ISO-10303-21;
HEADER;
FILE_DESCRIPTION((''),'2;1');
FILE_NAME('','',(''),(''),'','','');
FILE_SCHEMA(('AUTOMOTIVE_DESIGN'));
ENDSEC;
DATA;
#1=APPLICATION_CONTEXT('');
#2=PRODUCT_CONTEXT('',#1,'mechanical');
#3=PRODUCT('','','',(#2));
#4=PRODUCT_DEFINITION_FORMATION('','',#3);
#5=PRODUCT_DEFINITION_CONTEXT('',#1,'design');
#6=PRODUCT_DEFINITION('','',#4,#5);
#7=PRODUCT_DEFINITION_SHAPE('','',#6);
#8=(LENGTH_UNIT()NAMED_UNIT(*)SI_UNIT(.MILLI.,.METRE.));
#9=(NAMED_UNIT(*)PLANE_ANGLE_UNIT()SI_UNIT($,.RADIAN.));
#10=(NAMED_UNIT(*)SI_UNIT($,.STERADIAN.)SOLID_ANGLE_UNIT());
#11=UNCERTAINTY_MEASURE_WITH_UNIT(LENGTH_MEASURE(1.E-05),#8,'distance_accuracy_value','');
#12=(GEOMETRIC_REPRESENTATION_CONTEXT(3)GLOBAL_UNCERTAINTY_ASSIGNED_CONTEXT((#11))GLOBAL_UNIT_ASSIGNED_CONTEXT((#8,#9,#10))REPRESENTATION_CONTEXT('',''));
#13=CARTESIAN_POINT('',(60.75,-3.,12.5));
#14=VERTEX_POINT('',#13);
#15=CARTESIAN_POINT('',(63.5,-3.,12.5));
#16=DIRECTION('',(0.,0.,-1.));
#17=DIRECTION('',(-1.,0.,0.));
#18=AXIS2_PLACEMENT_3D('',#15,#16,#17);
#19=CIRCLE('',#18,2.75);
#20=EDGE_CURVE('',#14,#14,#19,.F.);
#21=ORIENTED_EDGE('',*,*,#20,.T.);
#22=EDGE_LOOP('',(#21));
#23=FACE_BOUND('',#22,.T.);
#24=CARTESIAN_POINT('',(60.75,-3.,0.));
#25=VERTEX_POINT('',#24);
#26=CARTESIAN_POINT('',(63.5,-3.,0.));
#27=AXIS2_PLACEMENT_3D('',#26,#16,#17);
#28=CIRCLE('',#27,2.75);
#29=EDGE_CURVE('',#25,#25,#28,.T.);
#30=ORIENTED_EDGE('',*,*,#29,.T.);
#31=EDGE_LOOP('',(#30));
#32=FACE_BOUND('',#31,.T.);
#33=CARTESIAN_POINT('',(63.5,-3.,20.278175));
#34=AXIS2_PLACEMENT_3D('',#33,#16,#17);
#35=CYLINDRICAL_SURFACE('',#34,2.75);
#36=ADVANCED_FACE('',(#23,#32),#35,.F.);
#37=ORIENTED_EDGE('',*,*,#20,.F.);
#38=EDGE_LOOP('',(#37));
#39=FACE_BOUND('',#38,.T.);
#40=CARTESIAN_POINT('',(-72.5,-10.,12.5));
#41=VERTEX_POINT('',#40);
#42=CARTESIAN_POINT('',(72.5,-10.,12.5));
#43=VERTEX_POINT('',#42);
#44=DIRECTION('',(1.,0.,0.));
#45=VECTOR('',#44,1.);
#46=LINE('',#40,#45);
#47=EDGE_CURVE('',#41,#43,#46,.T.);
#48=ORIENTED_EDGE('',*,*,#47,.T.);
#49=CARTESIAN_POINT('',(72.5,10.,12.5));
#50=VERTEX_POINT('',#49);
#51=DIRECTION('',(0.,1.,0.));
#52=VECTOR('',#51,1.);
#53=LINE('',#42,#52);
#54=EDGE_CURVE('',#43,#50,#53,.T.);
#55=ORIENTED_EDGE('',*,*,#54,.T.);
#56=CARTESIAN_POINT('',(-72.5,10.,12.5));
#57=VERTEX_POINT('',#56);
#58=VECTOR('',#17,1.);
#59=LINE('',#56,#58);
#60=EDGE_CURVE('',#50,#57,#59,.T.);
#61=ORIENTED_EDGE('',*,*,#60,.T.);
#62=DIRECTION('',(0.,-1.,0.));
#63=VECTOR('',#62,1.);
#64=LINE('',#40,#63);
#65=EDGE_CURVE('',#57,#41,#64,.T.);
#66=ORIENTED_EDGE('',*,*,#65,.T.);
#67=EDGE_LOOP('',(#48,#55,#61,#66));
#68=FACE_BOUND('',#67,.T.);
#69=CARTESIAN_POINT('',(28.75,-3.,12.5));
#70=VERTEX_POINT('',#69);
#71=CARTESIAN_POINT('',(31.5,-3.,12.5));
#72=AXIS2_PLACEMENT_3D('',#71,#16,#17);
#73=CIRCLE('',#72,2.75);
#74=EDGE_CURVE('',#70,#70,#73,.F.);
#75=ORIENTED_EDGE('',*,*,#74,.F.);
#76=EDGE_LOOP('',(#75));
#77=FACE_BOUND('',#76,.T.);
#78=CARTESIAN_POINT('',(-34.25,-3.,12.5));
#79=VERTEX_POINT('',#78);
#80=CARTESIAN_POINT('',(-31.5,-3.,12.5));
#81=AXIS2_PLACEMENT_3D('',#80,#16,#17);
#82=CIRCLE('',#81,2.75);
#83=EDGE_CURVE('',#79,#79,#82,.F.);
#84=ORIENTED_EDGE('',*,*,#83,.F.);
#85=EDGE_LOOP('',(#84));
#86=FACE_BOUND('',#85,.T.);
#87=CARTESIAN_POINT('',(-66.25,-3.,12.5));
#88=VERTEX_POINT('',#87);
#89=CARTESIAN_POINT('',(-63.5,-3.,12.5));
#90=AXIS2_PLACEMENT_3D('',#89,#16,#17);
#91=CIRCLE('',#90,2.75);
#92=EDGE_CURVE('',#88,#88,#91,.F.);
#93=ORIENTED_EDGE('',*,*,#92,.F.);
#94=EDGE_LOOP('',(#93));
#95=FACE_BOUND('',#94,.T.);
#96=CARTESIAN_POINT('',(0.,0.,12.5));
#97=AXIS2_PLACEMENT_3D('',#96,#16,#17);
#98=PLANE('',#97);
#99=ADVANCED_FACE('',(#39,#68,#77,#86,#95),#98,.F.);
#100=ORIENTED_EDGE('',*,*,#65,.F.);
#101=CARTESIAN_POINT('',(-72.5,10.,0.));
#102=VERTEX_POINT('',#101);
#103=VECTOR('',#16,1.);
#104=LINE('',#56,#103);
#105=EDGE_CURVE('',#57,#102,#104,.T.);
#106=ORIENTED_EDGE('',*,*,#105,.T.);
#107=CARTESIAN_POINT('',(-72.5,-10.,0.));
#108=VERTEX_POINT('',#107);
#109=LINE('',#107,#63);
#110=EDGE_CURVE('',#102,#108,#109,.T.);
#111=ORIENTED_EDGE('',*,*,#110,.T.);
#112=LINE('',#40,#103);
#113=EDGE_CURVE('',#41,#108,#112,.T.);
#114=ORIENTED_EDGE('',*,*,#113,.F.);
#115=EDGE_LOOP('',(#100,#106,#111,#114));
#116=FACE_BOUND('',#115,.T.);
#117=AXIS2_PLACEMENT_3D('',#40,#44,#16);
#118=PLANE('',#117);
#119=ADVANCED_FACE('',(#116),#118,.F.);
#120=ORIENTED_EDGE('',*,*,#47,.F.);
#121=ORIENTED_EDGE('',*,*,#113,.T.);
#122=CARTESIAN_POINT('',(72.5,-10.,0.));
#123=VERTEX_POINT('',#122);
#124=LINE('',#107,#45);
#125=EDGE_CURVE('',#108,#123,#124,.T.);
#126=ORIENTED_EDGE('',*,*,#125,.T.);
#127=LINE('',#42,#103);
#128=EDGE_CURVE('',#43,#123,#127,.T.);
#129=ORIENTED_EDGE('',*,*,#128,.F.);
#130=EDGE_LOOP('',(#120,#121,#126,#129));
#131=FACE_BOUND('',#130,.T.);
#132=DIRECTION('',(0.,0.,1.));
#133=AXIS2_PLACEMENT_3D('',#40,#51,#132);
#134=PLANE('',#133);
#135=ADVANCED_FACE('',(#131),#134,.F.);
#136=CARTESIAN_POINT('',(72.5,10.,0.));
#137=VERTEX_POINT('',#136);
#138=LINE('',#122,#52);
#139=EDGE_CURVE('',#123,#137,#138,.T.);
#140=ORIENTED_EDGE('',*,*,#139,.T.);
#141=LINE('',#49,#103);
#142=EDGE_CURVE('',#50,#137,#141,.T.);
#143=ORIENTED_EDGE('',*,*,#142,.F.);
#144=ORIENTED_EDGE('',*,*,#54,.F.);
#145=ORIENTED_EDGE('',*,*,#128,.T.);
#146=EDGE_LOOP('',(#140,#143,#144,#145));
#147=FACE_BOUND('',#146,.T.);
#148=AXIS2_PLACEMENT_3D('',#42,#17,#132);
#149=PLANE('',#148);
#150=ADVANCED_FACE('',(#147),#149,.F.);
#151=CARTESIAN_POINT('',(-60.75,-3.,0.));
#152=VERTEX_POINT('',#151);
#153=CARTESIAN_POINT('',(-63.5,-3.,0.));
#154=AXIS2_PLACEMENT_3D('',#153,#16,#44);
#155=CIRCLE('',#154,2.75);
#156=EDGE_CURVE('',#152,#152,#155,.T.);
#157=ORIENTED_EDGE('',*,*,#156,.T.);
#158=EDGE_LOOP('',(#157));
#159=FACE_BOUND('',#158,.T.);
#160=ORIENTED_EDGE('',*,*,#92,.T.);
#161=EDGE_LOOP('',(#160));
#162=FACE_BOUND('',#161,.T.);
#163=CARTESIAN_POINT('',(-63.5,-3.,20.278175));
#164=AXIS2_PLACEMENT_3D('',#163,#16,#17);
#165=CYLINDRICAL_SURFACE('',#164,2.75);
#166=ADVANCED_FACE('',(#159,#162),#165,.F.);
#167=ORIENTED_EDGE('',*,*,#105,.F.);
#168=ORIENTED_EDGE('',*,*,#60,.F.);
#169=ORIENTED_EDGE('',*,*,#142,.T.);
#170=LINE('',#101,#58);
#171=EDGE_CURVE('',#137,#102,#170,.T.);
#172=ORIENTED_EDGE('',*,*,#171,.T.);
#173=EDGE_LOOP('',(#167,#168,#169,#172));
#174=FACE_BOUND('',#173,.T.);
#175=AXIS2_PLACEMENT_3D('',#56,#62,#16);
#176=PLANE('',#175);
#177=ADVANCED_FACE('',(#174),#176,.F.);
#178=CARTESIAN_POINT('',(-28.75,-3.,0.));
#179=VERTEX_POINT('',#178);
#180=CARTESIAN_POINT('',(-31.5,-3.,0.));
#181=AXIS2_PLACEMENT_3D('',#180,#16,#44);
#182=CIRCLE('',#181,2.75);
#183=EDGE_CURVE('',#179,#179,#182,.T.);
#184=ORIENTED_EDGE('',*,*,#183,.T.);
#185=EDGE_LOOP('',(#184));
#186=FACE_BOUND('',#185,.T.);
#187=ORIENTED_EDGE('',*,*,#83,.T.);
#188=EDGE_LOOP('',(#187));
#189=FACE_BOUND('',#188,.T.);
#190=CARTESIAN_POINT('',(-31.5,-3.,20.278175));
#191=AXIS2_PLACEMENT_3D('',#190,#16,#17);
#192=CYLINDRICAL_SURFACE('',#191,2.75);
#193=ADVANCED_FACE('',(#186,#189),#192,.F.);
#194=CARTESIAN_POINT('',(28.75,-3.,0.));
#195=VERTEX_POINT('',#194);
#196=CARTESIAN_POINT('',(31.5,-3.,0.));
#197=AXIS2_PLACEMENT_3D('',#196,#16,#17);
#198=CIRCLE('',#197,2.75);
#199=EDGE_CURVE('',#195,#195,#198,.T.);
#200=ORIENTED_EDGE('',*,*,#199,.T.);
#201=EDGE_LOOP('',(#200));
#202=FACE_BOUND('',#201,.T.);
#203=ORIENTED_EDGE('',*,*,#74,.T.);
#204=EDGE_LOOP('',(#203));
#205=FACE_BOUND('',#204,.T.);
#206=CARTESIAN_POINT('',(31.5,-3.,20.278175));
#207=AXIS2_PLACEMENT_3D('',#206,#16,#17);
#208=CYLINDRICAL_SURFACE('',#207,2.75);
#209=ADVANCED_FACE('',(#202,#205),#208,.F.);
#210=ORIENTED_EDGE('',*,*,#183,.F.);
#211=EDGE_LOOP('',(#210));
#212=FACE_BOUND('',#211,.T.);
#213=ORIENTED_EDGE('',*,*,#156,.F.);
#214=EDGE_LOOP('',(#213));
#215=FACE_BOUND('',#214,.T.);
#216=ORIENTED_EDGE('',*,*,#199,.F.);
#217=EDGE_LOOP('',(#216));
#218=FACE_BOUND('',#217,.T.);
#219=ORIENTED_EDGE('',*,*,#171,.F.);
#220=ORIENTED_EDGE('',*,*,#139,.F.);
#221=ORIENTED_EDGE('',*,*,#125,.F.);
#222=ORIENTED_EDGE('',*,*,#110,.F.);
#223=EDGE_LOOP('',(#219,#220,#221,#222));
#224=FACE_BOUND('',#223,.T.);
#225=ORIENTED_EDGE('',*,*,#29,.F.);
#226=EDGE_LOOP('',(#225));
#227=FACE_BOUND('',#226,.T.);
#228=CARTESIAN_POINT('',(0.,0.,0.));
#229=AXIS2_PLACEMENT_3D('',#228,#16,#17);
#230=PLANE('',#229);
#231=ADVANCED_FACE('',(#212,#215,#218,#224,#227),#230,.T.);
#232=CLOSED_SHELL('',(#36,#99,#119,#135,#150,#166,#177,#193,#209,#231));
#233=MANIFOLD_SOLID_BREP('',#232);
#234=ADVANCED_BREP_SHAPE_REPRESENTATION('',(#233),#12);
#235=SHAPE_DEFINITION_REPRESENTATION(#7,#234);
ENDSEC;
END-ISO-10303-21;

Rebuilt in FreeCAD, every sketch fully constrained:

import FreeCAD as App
import Part
import Sketcher

V = App.Vector
Q = App.Units.Quantity


def add_polygon(sketch, points):
    """Adds a closed chain of lines whose ends are joined by coincident constraints."""
    first, n = sketch.GeometryCount, len(points)
    for a, b in zip(points, points[1:] + points[:1]):
        sketch.addGeometry(Part.LineSegment(App.Vector(*a, 0), App.Vector(*b, 0)), False)
    for i in range(n):
        sketch.addConstraint(Sketcher.Constraint("Coincident", first + i, 2, first + (i + 1) % n, 1))

doc = App.newDocument("Part")
params = doc.addObject("Spreadsheet::Sheet", "Params")
for row, (alias, value) in enumerate([
    ("sketch1_width", "145 mm"),
    ("sketch1_height", "20 mm"),
    ("pad1_length", "12.5 mm"),
    ("sketch2_diameter", "5.5 mm"),
    ("pocket1_length", "12.5 mm"),
], start=1):
    params.set(f"A{row}", alias)
    params.set(f"B{row}", "=" + value)
    params.setAlias(f"B{row}", alias)

body = doc.addObject("PartDesign::Body", "Body")

# Sketch on XY plane
sketch1 = doc.addObject("Sketcher::SketchObject", "Sketch")
body.addObject(sketch1)
sketch1.AttachmentSupport = (doc.XY_Plane, [""])
sketch1.MapMode = "FlatFace"
add_polygon(sketch1, [(-72, 10), (-72, -10), (72, -10), (72, 10)])  # lines 0-3
sketch1.addConstraint(Sketcher.Constraint("Vertical", 0))
sketch1.addConstraint(Sketcher.Constraint("Horizontal", 1))
sketch1.addConstraint(Sketcher.Constraint("Vertical", 2))
sketch1.addConstraint(Sketcher.Constraint("Horizontal", 3))
sketch1.addConstraint(Sketcher.Constraint("Symmetric", 0, 2, 2, 2, -1, 1))
sketch1.addConstraint(Sketcher.Constraint("DistanceX", 1, 1, 1, 2, Q("145 mm")))
sketch1.addConstraint(Sketcher.Constraint("DistanceY", 0, 2, 0, 1, Q("20 mm")))
sketch1.setExpression("Constraints[9]", "Params.sketch1_width")
sketch1.setExpression("Constraints[10]", "Params.sketch1_height")
pad1 = doc.addObject("PartDesign::Pad", "Pad")
body.addObject(pad1)
pad1.Profile = sketch1
pad1.setExpression("Length", "Params.pad1_length")

# Sketch on XY plane
sketch2 = doc.addObject("Sketcher::SketchObject", "Sketch001")
body.addObject(sketch2)
sketch2.AttachmentSupport = (doc.XY_Plane, [""])
sketch2.MapMode = "FlatFace"
sketch2.addGeometry(Part.Circle(V(63.5, -3, 0), V(0, 0, 1), 2.8), False)
sketch2.addGeometry(Part.Circle(V(31.5, -3, 0), V(0, 0, 1), 2.8), False)
sketch2.addGeometry(Part.Circle(V(-31.5, -3, 0), V(0, 0, 1), 2.8), False)
sketch2.addGeometry(Part.Circle(V(-63.5, -3, 0), V(0, 0, 1), 2.8), False)
sketch2.addConstraint(Sketcher.Constraint("Equal", 0, 1))
sketch2.addConstraint(Sketcher.Constraint("Equal", 1, 2))
sketch2.addConstraint(Sketcher.Constraint("Equal", 2, 3))
sketch2.addConstraint(Sketcher.Constraint("Symmetric", 1, 3, 2, 3, -2))
sketch2.addConstraint(Sketcher.Constraint("Symmetric", 0, 3, 3, 3, -2))
sketch2.addConstraint(Sketcher.Constraint("Horizontal", 0, 3, 1, 3))
sketch2.addConstraint(Sketcher.Constraint("Diameter", 0, Q("5.5 mm")))
sketch2.addConstraint(Sketcher.Constraint("DistanceY", 0, 3, -1, 1, Q("3 mm")))
sketch2.addConstraint(Sketcher.Constraint("DistanceX", 1, 3, 0, 3, Q("32 mm")))
sketch2.addConstraint(Sketcher.Constraint("DistanceX", 2, 3, 1, 3, Q("63 mm")))
sketch2.setExpression("Constraints[6]", "Params.sketch2_diameter")
pocket1 = doc.addObject("PartDesign::Pocket", "Pocket")
body.addObject(pocket1)
pocket1.Profile = sketch2
pocket1.setExpression("Length", "Params.pocket1_length")
pocket1.Reversed = True

doc.recompute()
